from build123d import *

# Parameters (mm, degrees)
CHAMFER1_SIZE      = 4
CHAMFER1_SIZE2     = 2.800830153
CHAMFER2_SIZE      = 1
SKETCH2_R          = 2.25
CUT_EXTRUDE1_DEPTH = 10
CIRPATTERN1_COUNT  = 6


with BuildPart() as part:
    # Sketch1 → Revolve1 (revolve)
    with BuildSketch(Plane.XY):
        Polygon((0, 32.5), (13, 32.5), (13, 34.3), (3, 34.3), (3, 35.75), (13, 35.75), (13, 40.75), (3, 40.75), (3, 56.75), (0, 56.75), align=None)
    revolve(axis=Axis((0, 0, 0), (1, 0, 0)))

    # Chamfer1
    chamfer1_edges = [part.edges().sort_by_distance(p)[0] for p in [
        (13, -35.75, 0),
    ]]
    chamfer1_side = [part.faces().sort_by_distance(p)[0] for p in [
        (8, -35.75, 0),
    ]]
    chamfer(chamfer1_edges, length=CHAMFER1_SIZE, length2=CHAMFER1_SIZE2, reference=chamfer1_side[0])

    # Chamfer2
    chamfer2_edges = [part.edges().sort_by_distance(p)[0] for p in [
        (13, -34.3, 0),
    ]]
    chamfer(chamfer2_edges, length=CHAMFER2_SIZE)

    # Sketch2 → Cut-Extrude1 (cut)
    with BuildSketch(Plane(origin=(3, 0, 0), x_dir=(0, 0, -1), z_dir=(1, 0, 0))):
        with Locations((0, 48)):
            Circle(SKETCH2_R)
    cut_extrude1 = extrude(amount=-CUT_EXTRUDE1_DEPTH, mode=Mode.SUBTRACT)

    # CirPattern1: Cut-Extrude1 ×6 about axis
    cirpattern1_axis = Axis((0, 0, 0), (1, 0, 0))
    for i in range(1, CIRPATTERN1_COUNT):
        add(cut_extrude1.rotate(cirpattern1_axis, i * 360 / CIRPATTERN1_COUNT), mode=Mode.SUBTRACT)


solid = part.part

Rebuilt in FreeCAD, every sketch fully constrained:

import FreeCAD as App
import Part
import Sketcher
Q = App.Units.Quantity


def edges_at(feature, points):
    """Names of the edges that pass closest to the given points."""
    edges = feature.Shape.Edges
    near = lambda p: min(range(len(edges)), key=lambda i: edges[i].distToShape(Part.Vertex(*p))[0])
    return sorted({f"Edge{near(p) + 1}" for p in points})

doc = App.newDocument("Part")
params = doc.addObject("Spreadsheet::Sheet", "Params")
for row, (alias, value) in enumerate([
    ("sketch1_width", "13 mm"),
    ("sketch1_width2", "10 mm"),
    ("sketch1_height", "5 mm"),
    ("sketch1_height2", "16 mm"),
    ("sketch1_height3", "1.8 mm"),
    ("revolution_angle", "360 deg"),
    ("chamfer_size", "4 mm"),
    ("chamfer_size2", "2.80083 mm"),
    ("chamfer2_size", "1 mm"),
    ("sketch2_diameter", "4.5 mm"),
    ("pocket1_length", "10 mm"),
], start=1):
    params.set(f"A{row}", alias)
    params.set(f"B{row}", "=" + value)
    params.setAlias(f"B{row}", alias)

body = doc.addObject("PartDesign::Body", "Body")

# Sketch on XY plane
sketch1 = body.newObject("Sketcher::SketchObject", "Sketch")
sketch1.AttachmentSupport = (doc.getObject("XY_Plane"), [""])
sketch1.MapMode = "FlatFace"
sketch1.addGeometry([
    Part.LineSegment(App.Vector(0, 32.5, 0), App.Vector(13, 32.5, 0)),  # 0
    Part.LineSegment(App.Vector(13, 32.5, 0), App.Vector(13, 34.3, 0)),  # 1
    Part.LineSegment(App.Vector(13, 34.3, 0), App.Vector(3, 34.3, 0)),  # 2
    Part.LineSegment(App.Vector(3, 34.3, 0), App.Vector(3, 35.75, 0)),  # 3
    Part.LineSegment(App.Vector(3, 35.75, 0), App.Vector(13, 35.75, 0)),  # 4
    Part.LineSegment(App.Vector(13, 35.75, 0), App.Vector(13, 40.75, 0)),  # 5
    Part.LineSegment(App.Vector(13, 40.75, 0), App.Vector(3, 40.75, 0)),  # 6
    Part.LineSegment(App.Vector(3, 40.75, 0), App.Vector(3, 56.75, 0)),  # 7
    Part.LineSegment(App.Vector(3, 56.75, 0), App.Vector(0, 56.75, 0)),  # 8
    Part.LineSegment(App.Vector(0, 56.75, 0), App.Vector(0, 32.5, 0)),  # 9
], False)
sketch1.addConstraint([
    Sketcher.Constraint("Coincident", 0, 2, 1, 1),
    Sketcher.Constraint("Coincident", 1, 2, 2, 1),
    Sketcher.Constraint("Coincident", 2, 2, 3, 1),
    Sketcher.Constraint("Coincident", 3, 2, 4, 1),
    Sketcher.Constraint("Coincident", 4, 2, 5, 1),
    Sketcher.Constraint("Coincident", 5, 2, 6, 1),
    Sketcher.Constraint("Coincident", 6, 2, 7, 1),
    Sketcher.Constraint("Coincident", 7, 2, 8, 1),
    Sketcher.Constraint("Coincident", 8, 2, 9, 1),
    Sketcher.Constraint("Coincident", 9, 2, 0, 1),
    Sketcher.Constraint("Horizontal", 0),
    Sketcher.Constraint("Vertical", 1),
    Sketcher.Constraint("Horizontal", 2),
    Sketcher.Constraint("Vertical", 3),
    Sketcher.Constraint("Horizontal", 4),
    Sketcher.Constraint("Vertical", 5),
    Sketcher.Constraint("Horizontal", 6),
    Sketcher.Constraint("Vertical", 7),
    Sketcher.Constraint("Horizontal", 8),
    Sketcher.Constraint("Vertical", 9),
    Sketcher.Constraint("PointOnObject", 8, 2, -2),
    Sketcher.Constraint("Vertical", 1, 2, 4, 2),
    Sketcher.Constraint("Vertical", 3, 2, 6, 2),
    Sketcher.Constraint("DistanceX", 0, 1, 0, 2, Q("13 mm")),
    Sketcher.Constraint("DistanceX", 2, 2, 2, 1, Q("10 mm")),
    Sketcher.Constraint("DistanceY", 5, 1, 5, 2, Q("5 mm")),
    Sketcher.Constraint("DistanceY", 7, 1, 7, 2, Q("16 mm")),
    Sketcher.Constraint("DistanceY", 1, 1, 1, 2, Q("1.8 mm")),
    Sketcher.Constraint("DistanceY", 3, 1, 3, 2, Q("1.45 mm")),
    Sketcher.Constraint("DistanceY", -1, 1, 0, 2, Q("32.5 mm")),
])
sketch1.setExpression("Constraints[23]", "Params.sketch1_width")
sketch1.setExpression("Constraints[24]", "Params.sketch1_width2")
sketch1.setExpression("Constraints[25]", "Params.sketch1_height")
sketch1.setExpression("Constraints[26]", "Params.sketch1_height2")
sketch1.setExpression("Constraints[27]", "Params.sketch1_height3")
revolution = body.newObject("PartDesign::Revolution", "Revolution")
revolution.Profile = sketch1
revolution.ReferenceAxis = (sketch1, ["H_Axis"])
revolution.setExpression("Angle", "Params.revolution_angle")
doc.recompute()

chamfer = body.newObject("PartDesign::Chamfer", "Chamfer")
chamfer.Base = (revolution, edges_at(revolution, [(13, -35.75, 0)]))
chamfer.ChamferType = "Two distances"
chamfer.setExpression("Size", "Params.chamfer_size")
chamfer.setExpression("Size2", "Params.chamfer_size2")
doc.recompute()

chamfer2 = body.newObject("PartDesign::Chamfer", "Chamfer001")
chamfer2.Base = (chamfer, edges_at(chamfer, [(13, -34.3, 0)]))
chamfer2.setExpression("Size", "Params.chamfer2_size")

# Sketch on YZ plane
sketch2 = body.newObject("Sketcher::SketchObject", "Sketch001")
sketch2.AttachmentSupport = (doc.getObject("YZ_Plane"), [""])
sketch2.MapMode = "FlatFace"
sketch2.AttachmentOffset = App.Placement(App.Vector(0, 0, 3), App.Rotation())
sketch2.addGeometry(Part.Circle(App.Vector(48, 0, 0), App.Vector(0, 0, 1), 2.25), False)
sketch2.addConstraint([
    Sketcher.Constraint("PointOnObject", 0, 3, -1),
    Sketcher.Constraint("Diameter", 0, Q("4.5 mm")),
    Sketcher.Constraint("DistanceX", -1, 1, 0, 3, Q("48 mm")),
])
sketch2.setExpression("Constraints[1]", "Params.sketch2_diameter")
pocket1 = body.newObject("PartDesign::Pocket", "Pocket")
pocket1.Profile = sketch2
pocket1.setExpression("Length", "Params.pocket1_length")
doc.recompute()

polarpattern = body.newObject("PartDesign::PolarPattern", "PolarPattern")
polarpattern.Originals = [pocket1]
polarpattern.Axis = (doc.getObject("X_Axis"), [""])
polarpattern.Angle = 360
polarpattern.Occurrences = 6
body.Tip = polarpattern

doc.recompute()
